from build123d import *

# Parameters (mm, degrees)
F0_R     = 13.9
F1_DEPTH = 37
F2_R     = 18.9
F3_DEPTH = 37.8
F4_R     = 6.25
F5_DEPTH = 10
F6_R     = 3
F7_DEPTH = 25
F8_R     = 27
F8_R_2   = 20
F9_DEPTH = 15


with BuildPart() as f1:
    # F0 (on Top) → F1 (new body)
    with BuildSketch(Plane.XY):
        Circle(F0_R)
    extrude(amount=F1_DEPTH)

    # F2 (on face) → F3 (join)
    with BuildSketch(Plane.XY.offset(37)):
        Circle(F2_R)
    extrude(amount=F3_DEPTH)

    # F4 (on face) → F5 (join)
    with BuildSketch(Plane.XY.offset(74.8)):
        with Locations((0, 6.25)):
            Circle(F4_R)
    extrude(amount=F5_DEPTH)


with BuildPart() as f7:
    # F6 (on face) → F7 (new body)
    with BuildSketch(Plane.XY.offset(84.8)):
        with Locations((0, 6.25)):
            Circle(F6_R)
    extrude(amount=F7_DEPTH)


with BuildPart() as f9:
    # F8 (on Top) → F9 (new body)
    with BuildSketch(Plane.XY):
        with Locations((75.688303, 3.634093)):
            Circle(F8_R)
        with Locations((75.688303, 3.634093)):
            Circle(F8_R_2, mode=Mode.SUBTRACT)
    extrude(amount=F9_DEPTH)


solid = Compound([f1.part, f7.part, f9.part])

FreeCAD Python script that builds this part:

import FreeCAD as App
import Part
import Sketcher

doc = App.newDocument("Part")
body = doc.addObject("PartDesign::Body", "Body")

sketch1 = doc.addObject("Sketcher::SketchObject", "Sketch")
body.addObject(sketch1)
sketch1.AttachmentSupport = (doc.XY_Plane, [""])
sketch1.MapMode = "FlatFace"
sketch1.addGeometry(Part.Circle(App.Vector(0, 0, 0), App.Vector(0, 0, 1), 14), False)
sketch1.addConstraint([
    Sketcher.Constraint("Coincident", 0, 3, -1, 1),
    Sketcher.Constraint("Diameter", 0, 27.8),
])
pad1 = doc.addObject("PartDesign::Pad", "Pad")
body.addObject(pad1)
pad1.Profile = sketch1
pad1.Length = 37

sketch2 = doc.addObject("Sketcher::SketchObject", "Sketch001")
body.addObject(sketch2)
sketch2.AttachmentSupport = (doc.XY_Plane, [""])
sketch2.MapMode = "FlatFace"
sketch2.AttachmentOffset = App.Placement(App.Vector(0, 0, 37), App.Rotation())
sketch2.addGeometry(Part.Circle(App.Vector(0, 0, 0), App.Vector(0, 0, 1), 19), False)
sketch2.addConstraint([
    Sketcher.Constraint("Coincident", 0, 3, -1, 1),
    Sketcher.Constraint("Diameter", 0, 37.8),
])
pad2 = doc.addObject("PartDesign::Pad", "Pad001")
body.addObject(pad2)
pad2.Profile = sketch2
pad2.Length = 37.8

sketch3 = doc.addObject("Sketcher::SketchObject", "Sketch002")
body.addObject(sketch3)
sketch3.AttachmentSupport = (doc.XY_Plane, [""])
sketch3.MapMode = "FlatFace"
sketch3.AttachmentOffset = App.Placement(App.Vector(0, 0, 74.8), App.Rotation())
sketch3.addGeometry(Part.Circle(App.Vector(0, 6, 0), App.Vector(0, 0, 1), 6), False)
sketch3.addConstraint([
    Sketcher.Constraint("PointOnObject", 0, 3, -2),
    Sketcher.Constraint("Diameter", 0, 12.5),
    Sketcher.Constraint("DistanceY", -1, 1, 0, 3, 6.25),
])
pad3 = doc.addObject("PartDesign::Pad", "Pad002")
body.addObject(pad3)
pad3.Profile = sketch3
pad3.Length = 10
body2 = doc.addObject("PartDesign::Body", "Body001")

sketch4 = doc.addObject("Sketcher::SketchObject", "Sketch003")
body2.addObject(sketch4)
sketch4.AttachmentSupport = (doc.getObject("XY_Plane001"), [""])
sketch4.MapMode = "FlatFace"
sketch4.AttachmentOffset = App.Placement(App.Vector(0, 0, 84.8), App.Rotation())
sketch4.addGeometry(Part.Circle(App.Vector(0, 6.2, 0), App.Vector(0, 0, 1), 3), False)
sketch4.addConstraint([
    Sketcher.Constraint("PointOnObject", 0, 3, -2),
    Sketcher.Constraint("Diameter", 0, 6.0),
    Sketcher.Constraint("DistanceY", -1, 1, 0, 3, 6.25),
])
pad4 = doc.addObject("PartDesign::Pad", "Pad003")
body2.addObject(pad4)
pad4.Profile = sketch4
pad4.Length = 25
body3 = doc.addObject("PartDesign::Body", "Body002")

sketch5 = doc.addObject("Sketcher::SketchObject", "Sketch004")
body3.addObject(sketch5)
sketch5.AttachmentSupport = (doc.getObject("XY_Plane002"), [""])
sketch5.MapMode = "FlatFace"
sketch5.addGeometry([
    Part.Circle(App.Vector(76, 4, 0), App.Vector(0, 0, 1), 27),
    Part.Circle(App.Vector(76, 4, 0), App.Vector(0, 0, 1), 20),
], False)
sketch5.addConstraint([
    Sketcher.Constraint("Coincident", 1, 3, 0, 3),
    Sketcher.Constraint("Diameter", 0, 54.0),
    Sketcher.Constraint("Diameter", 1, 40.0),
    Sketcher.Constraint("DistanceX", -1, 1, 0, 3, 75.688303),
    Sketcher.Constraint("DistanceY", -1, 1, 0, 3, 3.634093),
])
pad5 = doc.addObject("PartDesign::Pad", "Pad004")
body3.addObject(pad5)
pad5.Profile = sketch5
pad5.Length = 15

doc.recompute()
